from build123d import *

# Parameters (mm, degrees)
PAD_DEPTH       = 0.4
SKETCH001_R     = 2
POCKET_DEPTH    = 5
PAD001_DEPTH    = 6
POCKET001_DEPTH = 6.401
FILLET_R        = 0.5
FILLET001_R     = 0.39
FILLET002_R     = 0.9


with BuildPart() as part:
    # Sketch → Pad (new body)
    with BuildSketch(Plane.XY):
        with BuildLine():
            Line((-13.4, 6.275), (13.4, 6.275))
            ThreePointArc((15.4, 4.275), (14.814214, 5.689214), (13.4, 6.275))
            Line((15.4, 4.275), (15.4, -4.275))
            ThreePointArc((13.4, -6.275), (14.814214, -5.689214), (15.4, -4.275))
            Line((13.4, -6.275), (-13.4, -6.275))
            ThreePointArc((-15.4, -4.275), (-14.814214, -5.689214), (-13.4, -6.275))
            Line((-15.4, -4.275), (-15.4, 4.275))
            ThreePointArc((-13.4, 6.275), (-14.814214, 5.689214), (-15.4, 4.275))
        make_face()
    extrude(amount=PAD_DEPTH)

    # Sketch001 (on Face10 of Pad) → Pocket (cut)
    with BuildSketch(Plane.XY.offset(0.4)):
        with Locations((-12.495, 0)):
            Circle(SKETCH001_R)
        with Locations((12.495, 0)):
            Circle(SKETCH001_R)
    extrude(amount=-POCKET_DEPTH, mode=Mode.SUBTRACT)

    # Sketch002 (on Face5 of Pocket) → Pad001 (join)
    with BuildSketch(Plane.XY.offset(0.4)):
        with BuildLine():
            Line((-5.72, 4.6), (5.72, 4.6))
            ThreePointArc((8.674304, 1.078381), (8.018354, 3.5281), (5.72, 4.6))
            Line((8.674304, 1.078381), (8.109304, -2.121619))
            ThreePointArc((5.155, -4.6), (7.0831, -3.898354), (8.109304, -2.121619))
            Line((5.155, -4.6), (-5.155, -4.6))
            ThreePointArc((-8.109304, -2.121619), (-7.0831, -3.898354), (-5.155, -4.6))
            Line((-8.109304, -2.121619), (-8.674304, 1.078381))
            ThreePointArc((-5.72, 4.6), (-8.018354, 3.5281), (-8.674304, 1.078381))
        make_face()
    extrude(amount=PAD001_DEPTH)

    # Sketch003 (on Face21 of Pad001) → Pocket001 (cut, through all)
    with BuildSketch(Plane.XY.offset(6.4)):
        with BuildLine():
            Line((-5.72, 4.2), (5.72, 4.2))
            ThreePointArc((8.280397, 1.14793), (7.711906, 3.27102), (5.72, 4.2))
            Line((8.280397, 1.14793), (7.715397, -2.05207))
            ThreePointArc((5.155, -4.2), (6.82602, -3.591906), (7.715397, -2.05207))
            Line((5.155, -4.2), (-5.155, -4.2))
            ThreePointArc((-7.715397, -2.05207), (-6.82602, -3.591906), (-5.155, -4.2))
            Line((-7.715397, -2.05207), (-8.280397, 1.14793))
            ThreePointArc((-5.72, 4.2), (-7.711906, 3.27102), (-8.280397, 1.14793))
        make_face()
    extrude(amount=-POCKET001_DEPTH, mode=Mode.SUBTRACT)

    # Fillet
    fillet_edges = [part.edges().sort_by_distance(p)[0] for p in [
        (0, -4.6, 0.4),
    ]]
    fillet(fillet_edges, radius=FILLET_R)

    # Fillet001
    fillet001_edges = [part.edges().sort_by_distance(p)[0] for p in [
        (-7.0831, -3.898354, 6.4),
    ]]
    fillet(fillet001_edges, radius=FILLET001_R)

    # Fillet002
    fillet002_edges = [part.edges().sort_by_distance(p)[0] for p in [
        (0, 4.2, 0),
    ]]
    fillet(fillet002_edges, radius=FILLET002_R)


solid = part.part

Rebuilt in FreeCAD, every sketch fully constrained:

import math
import FreeCAD as App
import Part
import Sketcher
from FreeCAD import Vector


def edges_at(feature, points):
    """Names of the edges that pass closest to the given points."""
    edges = feature.Shape.Edges
    near = lambda p: min(range(len(edges)), key=lambda i: edges[i].distToShape(Part.Vertex(*p))[0])
    return sorted({f"Edge{near(p) + 1}" for p in points})

doc = App.newDocument("Part")
body = doc.addObject("PartDesign::Body", "Body")

# Sketch on XY plane
sketch1 = body.newObject("Sketcher::SketchObject", "Sketch")
sketch1.AttachmentSupport = (doc.getObject("XY_Plane"), [""])
sketch1.MapMode = "FlatFace"
sketch1.addGeometry([
    Part.LineSegment(Vector(13.4, 6.275, 0), Vector(-13.4, 6.275, 0)),  # 0
    Part.ArcOfCircle(Part.Circle(Vector(-13.400001, 4.275001, 0), Vector(0, 0, 1), 1.999999), math.radians(89.999957), math.radians(180.000043)),  # 1
    Part.LineSegment(Vector(-15.4, 4.275, 0), Vector(-15.4, -4.275, 0)),  # 2
    Part.ArcOfCircle(Part.Circle(Vector(-13.400001, -4.275001, 0), Vector(0, 0, 1), 1.999999), math.radians(179.999957), math.radians(270.000043)),  # 3
    Part.LineSegment(Vector(-13.4, -6.275, 0), Vector(13.4, -6.275, 0)),  # 4
    Part.ArcOfCircle(Part.Circle(Vector(13.400001, -4.275001, 0), Vector(0, 0, 1), 1.999999), math.radians(-90.000043), math.radians(0.000043)),  # 5
    Part.LineSegment(Vector(15.4, -4.275, 0), Vector(15.4, 4.275, 0)),  # 6
    Part.ArcOfCircle(Part.Circle(Vector(13.400001, 4.275001, 0), Vector(0, 0, 1), 1.999999), math.radians(-0.000043), math.radians(90.000043)),  # 7
], False)
sketch1.addConstraint([
    Sketcher.Constraint("Tangent", 0, 2, 1, 1),
    Sketcher.Constraint("Tangent", 1, 2, 2, 1),
    Sketcher.Constraint("Tangent", 2, 2, 3, 1),
    Sketcher.Constraint("Tangent", 3, 2, 4, 1),
    Sketcher.Constraint("Tangent", 4, 2, 5, 1),
    Sketcher.Constraint("Tangent", 5, 2, 6, 1),
    Sketcher.Constraint("Tangent", 6, 2, 7, 1),
    Sketcher.Constraint("Tangent", 7, 2, 0, 1),
    Sketcher.Constraint("Horizontal", 0),
    Sketcher.Constraint("Vertical", 2),
    Sketcher.Constraint("Horizontal", 4),
    Sketcher.Constraint("Vertical", 6),
    Sketcher.Constraint("Equal", 1, 3),
    Sketcher.Constraint("Equal", 3, 5),
    Sketcher.Constraint("Equal", 5, 7),
    Sketcher.Constraint("Symmetric", 1, 3, 5, 3, -1, 1),
    Sketcher.Constraint("Radius", 1, 1.999999),
    Sketcher.Constraint("DistanceX", 0, 2, 0, 1, 26.8),
    Sketcher.Constraint("DistanceY", 2, 2, 2, 1, 8.55),
])
pad1 = body.newObject("PartDesign::Pad", "Pad")
pad1.Profile = sketch1
pad1.Length = 0.4

# Sketch on XY plane
sketch2 = body.newObject("Sketcher::SketchObject", "Sketch001")
sketch2.AttachmentSupport = (doc.getObject("XY_Plane"), [""])
sketch2.MapMode = "FlatFace"
sketch2.AttachmentOffset = App.Placement(Vector(0, 0, 0.4), App.Rotation())
sketch2.addGeometry([
    Part.Circle(Vector(-12.495, 0, 0), Vector(0, 0, 1), 2),
    Part.Circle(Vector(12.495, 0, 0), Vector(0, 0, 1), 2),
], False)
sketch2.addConstraint([
    Sketcher.Constraint("Equal", 0, 1),
    Sketcher.Constraint("Symmetric", 0, 3, 1, 3, -1, 1),
    Sketcher.Constraint("PointOnObject", 0, 3, -1),
    Sketcher.Constraint("Diameter", 0, 4.0),
    Sketcher.Constraint("DistanceX", 0, 3, 1, 3, 24.99),
])
pocket1 = body.newObject("PartDesign::Pocket", "Pocket")
pocket1.Profile = sketch2
pocket1.Length = 5

# Sketch on XY plane
sketch3 = body.newObject("Sketcher::SketchObject", "Sketch002")
sketch3.AttachmentSupport = (doc.getObject("XY_Plane"), [""])
sketch3.MapMode = "FlatFace"
sketch3.AttachmentOffset = App.Placement(Vector(0, 0, 0.4), App.Rotation())
sketch3.addGeometry([
    Part.LineSegment(Vector(5.72, 4.6, 0), Vector(-5.72, 4.6, 0)),  # 0
    Part.ArcOfCircle(Part.Circle(Vector(-5.72, 1.600001, 0), Vector(0, 0, 1), 2.999999), math.radians(89.999992), math.radians(190.013093)),  # 1
    Part.LineSegment(Vector(-8.674304, 1.078381, 0), Vector(-8.109304, -2.121619, 0)),  # 2
    Part.ArcOfCircle(Part.Circle(Vector(-5.155001, -1.600001, 0), Vector(0, 0, 1), 2.999999), math.radians(-169.986934), math.radians(-89.99999)),  # 3
    Part.LineSegment(Vector(-5.155, -4.6, 0), Vector(5.155, -4.6, 0)),  # 4
    Part.ArcOfCircle(Part.Circle(Vector(5.155001, -1.600001, 0), Vector(0, 0, 1), 2.999999), math.radians(-90.00001), math.radians(-10.013066)),  # 5
    Part.LineSegment(Vector(8.109304, -2.121619, 0), Vector(8.674304, 1.078381, 0)),  # 6
    Part.ArcOfCircle(Part.Circle(Vector(5.72, 1.600001, 0), Vector(0, 0, 1), 2.999999), math.radians(-10.013093), math.radians(90.000008)),  # 7
], False)
sketch3.addConstraint([
    Sketcher.Constraint("Tangent", 0, 2, 1, 1),
    Sketcher.Constraint("Tangent", 1, 2, 2, 1),
    Sketcher.Constraint("Tangent", 2, 2, 3, 1),
    Sketcher.Constraint("Tangent", 3, 2, 4, 1),
    Sketcher.Constraint("Tangent", 4, 2, 5, 1),
    Sketcher.Constraint("Tangent", 5, 2, 6, 1),
    Sketcher.Constraint("Tangent", 6, 2, 7, 1),
    Sketcher.Constraint("Tangent", 7, 2, 0, 1),
    Sketcher.Constraint("Horizontal", 0),
    Sketcher.Constraint("Horizontal", 4),
    Sketcher.Constraint("Equal", 1, 3),
    Sketcher.Constraint("Equal", 3, 5),
    Sketcher.Constraint("Equal", 5, 7),
    Sketcher.Constraint("Symmetric", 2, 2, 5, 2, -2),
    Sketcher.Constraint("Radius", 1, 2.999999),
    Sketcher.Constraint("DistanceX", 0, 2, 0, 1, 11.44),
    Sketcher.Constraint("DistanceX", 4, 1, 4, 2, 10.31),
    Sketcher.Constraint("DistanceY", -1, 1, 1, 3, 1.600001),
    Sketcher.Constraint("DistanceY", 3, 3, -1, 1, 1.600001),
])
pad2 = body.newObject("PartDesign::Pad", "Pad001")
pad2.Profile = sketch3
pad2.Length = 6

# Sketch on XY plane
sketch4 = body.newObject("Sketcher::SketchObject", "Sketch003")
sketch4.AttachmentSupport = (doc.getObject("XY_Plane"), [""])
sketch4.MapMode = "FlatFace"
sketch4.AttachmentOffset = App.Placement(Vector(0, 0, 6.4), App.Rotation())
sketch4.addGeometry([
    Part.LineSegment(Vector(5.72, 4.2, 0), Vector(-5.72, 4.2, 0)),  # 0
    Part.ArcOfCircle(Part.Circle(Vector(-5.719999, 1.599999, 0), Vector(0, 0, 1), 2.600001), math.radians(90.000024), math.radians(190.01306)),  # 1
    Part.LineSegment(Vector(-8.280397, 1.14793, 0), Vector(-7.715397, -2.05207, 0)),  # 2
    Part.ArcOfCircle(Part.Circle(Vector(-5.154999, -1.599998, 0), Vector(0, 0, 1), 2.600002), math.radians(-169.986884), math.radians(-90.000031)),  # 3
    Part.LineSegment(Vector(-5.155, -4.2, 0), Vector(5.155, -4.2, 0)),  # 4
    Part.ArcOfCircle(Part.Circle(Vector(5.154999, -1.599998, 0), Vector(0, 0, 1), 2.600002), math.radians(-89.999969), math.radians(-10.013116)),  # 5
    Part.LineSegment(Vector(7.715397, -2.05207, 0), Vector(8.280397, 1.14793, 0)),  # 6
    Part.ArcOfCircle(Part.Circle(Vector(5.719999, 1.599999, 0), Vector(0, 0, 1), 2.600001), math.radians(-10.01306), math.radians(89.999976)),  # 7
], False)
sketch4.addConstraint([
    Sketcher.Constraint("Tangent", 0, 2, 1, 1),
    Sketcher.Constraint("Tangent", 1, 2, 2, 1),
    Sketcher.Constraint("Tangent", 2, 2, 3, 1),
    Sketcher.Constraint("Tangent", 3, 2, 4, 1),
    Sketcher.Constraint("Tangent", 4, 2, 5, 1),
    Sketcher.Constraint("Tangent", 5, 2, 6, 1),
    Sketcher.Constraint("Tangent", 6, 2, 7, 1),
    Sketcher.Constraint("Tangent", 7, 2, 0, 1),
    Sketcher.Constraint("Horizontal", 0),
    Sketcher.Constraint("Horizontal", 4),
    Sketcher.Constraint("Equal", 1, 3),
    Sketcher.Constraint("Equal", 3, 5),
    Sketcher.Constraint("Equal", 5, 7),
    Sketcher.Constraint("Symmetric", 2, 2, 5, 2, -2),
    Sketcher.Constraint("Radius", 1, 2.600001),
    Sketcher.Constraint("DistanceX", 0, 2, 0, 1, 11.44),
    Sketcher.Constraint("DistanceX", 4, 1, 4, 2, 10.31),
    Sketcher.Constraint("DistanceY", -1, 1, 1, 3, 1.599999),
    Sketcher.Constraint("DistanceY", 3, 3, -1, 1, 1.599998),
])
pocket2 = body.newObject("PartDesign::Pocket", "Pocket001")
pocket2.Profile = sketch4
pocket2.Type = "ThroughAll"
doc.recompute()

fillet = body.newObject("PartDesign::Fillet", "Fillet")
fillet.Base = (pocket2, edges_at(pocket2, [(0, -4.6, 0.4)]))
fillet.Radius = 0.5
doc.recompute()

fillet2 = body.newObject("PartDesign::Fillet", "Fillet001")
fillet2.Base = (fillet, edges_at(fillet, [(-7.083, -3.898, 6.4)]))
fillet2.Radius = 0.39
doc.recompute()

fillet3 = body.newObject("PartDesign::Fillet", "Fillet002")
fillet3.Base = (fillet2, edges_at(fillet2, [(0, 4.2, 0)]))
fillet3.Radius = 0.9

doc.recompute()
